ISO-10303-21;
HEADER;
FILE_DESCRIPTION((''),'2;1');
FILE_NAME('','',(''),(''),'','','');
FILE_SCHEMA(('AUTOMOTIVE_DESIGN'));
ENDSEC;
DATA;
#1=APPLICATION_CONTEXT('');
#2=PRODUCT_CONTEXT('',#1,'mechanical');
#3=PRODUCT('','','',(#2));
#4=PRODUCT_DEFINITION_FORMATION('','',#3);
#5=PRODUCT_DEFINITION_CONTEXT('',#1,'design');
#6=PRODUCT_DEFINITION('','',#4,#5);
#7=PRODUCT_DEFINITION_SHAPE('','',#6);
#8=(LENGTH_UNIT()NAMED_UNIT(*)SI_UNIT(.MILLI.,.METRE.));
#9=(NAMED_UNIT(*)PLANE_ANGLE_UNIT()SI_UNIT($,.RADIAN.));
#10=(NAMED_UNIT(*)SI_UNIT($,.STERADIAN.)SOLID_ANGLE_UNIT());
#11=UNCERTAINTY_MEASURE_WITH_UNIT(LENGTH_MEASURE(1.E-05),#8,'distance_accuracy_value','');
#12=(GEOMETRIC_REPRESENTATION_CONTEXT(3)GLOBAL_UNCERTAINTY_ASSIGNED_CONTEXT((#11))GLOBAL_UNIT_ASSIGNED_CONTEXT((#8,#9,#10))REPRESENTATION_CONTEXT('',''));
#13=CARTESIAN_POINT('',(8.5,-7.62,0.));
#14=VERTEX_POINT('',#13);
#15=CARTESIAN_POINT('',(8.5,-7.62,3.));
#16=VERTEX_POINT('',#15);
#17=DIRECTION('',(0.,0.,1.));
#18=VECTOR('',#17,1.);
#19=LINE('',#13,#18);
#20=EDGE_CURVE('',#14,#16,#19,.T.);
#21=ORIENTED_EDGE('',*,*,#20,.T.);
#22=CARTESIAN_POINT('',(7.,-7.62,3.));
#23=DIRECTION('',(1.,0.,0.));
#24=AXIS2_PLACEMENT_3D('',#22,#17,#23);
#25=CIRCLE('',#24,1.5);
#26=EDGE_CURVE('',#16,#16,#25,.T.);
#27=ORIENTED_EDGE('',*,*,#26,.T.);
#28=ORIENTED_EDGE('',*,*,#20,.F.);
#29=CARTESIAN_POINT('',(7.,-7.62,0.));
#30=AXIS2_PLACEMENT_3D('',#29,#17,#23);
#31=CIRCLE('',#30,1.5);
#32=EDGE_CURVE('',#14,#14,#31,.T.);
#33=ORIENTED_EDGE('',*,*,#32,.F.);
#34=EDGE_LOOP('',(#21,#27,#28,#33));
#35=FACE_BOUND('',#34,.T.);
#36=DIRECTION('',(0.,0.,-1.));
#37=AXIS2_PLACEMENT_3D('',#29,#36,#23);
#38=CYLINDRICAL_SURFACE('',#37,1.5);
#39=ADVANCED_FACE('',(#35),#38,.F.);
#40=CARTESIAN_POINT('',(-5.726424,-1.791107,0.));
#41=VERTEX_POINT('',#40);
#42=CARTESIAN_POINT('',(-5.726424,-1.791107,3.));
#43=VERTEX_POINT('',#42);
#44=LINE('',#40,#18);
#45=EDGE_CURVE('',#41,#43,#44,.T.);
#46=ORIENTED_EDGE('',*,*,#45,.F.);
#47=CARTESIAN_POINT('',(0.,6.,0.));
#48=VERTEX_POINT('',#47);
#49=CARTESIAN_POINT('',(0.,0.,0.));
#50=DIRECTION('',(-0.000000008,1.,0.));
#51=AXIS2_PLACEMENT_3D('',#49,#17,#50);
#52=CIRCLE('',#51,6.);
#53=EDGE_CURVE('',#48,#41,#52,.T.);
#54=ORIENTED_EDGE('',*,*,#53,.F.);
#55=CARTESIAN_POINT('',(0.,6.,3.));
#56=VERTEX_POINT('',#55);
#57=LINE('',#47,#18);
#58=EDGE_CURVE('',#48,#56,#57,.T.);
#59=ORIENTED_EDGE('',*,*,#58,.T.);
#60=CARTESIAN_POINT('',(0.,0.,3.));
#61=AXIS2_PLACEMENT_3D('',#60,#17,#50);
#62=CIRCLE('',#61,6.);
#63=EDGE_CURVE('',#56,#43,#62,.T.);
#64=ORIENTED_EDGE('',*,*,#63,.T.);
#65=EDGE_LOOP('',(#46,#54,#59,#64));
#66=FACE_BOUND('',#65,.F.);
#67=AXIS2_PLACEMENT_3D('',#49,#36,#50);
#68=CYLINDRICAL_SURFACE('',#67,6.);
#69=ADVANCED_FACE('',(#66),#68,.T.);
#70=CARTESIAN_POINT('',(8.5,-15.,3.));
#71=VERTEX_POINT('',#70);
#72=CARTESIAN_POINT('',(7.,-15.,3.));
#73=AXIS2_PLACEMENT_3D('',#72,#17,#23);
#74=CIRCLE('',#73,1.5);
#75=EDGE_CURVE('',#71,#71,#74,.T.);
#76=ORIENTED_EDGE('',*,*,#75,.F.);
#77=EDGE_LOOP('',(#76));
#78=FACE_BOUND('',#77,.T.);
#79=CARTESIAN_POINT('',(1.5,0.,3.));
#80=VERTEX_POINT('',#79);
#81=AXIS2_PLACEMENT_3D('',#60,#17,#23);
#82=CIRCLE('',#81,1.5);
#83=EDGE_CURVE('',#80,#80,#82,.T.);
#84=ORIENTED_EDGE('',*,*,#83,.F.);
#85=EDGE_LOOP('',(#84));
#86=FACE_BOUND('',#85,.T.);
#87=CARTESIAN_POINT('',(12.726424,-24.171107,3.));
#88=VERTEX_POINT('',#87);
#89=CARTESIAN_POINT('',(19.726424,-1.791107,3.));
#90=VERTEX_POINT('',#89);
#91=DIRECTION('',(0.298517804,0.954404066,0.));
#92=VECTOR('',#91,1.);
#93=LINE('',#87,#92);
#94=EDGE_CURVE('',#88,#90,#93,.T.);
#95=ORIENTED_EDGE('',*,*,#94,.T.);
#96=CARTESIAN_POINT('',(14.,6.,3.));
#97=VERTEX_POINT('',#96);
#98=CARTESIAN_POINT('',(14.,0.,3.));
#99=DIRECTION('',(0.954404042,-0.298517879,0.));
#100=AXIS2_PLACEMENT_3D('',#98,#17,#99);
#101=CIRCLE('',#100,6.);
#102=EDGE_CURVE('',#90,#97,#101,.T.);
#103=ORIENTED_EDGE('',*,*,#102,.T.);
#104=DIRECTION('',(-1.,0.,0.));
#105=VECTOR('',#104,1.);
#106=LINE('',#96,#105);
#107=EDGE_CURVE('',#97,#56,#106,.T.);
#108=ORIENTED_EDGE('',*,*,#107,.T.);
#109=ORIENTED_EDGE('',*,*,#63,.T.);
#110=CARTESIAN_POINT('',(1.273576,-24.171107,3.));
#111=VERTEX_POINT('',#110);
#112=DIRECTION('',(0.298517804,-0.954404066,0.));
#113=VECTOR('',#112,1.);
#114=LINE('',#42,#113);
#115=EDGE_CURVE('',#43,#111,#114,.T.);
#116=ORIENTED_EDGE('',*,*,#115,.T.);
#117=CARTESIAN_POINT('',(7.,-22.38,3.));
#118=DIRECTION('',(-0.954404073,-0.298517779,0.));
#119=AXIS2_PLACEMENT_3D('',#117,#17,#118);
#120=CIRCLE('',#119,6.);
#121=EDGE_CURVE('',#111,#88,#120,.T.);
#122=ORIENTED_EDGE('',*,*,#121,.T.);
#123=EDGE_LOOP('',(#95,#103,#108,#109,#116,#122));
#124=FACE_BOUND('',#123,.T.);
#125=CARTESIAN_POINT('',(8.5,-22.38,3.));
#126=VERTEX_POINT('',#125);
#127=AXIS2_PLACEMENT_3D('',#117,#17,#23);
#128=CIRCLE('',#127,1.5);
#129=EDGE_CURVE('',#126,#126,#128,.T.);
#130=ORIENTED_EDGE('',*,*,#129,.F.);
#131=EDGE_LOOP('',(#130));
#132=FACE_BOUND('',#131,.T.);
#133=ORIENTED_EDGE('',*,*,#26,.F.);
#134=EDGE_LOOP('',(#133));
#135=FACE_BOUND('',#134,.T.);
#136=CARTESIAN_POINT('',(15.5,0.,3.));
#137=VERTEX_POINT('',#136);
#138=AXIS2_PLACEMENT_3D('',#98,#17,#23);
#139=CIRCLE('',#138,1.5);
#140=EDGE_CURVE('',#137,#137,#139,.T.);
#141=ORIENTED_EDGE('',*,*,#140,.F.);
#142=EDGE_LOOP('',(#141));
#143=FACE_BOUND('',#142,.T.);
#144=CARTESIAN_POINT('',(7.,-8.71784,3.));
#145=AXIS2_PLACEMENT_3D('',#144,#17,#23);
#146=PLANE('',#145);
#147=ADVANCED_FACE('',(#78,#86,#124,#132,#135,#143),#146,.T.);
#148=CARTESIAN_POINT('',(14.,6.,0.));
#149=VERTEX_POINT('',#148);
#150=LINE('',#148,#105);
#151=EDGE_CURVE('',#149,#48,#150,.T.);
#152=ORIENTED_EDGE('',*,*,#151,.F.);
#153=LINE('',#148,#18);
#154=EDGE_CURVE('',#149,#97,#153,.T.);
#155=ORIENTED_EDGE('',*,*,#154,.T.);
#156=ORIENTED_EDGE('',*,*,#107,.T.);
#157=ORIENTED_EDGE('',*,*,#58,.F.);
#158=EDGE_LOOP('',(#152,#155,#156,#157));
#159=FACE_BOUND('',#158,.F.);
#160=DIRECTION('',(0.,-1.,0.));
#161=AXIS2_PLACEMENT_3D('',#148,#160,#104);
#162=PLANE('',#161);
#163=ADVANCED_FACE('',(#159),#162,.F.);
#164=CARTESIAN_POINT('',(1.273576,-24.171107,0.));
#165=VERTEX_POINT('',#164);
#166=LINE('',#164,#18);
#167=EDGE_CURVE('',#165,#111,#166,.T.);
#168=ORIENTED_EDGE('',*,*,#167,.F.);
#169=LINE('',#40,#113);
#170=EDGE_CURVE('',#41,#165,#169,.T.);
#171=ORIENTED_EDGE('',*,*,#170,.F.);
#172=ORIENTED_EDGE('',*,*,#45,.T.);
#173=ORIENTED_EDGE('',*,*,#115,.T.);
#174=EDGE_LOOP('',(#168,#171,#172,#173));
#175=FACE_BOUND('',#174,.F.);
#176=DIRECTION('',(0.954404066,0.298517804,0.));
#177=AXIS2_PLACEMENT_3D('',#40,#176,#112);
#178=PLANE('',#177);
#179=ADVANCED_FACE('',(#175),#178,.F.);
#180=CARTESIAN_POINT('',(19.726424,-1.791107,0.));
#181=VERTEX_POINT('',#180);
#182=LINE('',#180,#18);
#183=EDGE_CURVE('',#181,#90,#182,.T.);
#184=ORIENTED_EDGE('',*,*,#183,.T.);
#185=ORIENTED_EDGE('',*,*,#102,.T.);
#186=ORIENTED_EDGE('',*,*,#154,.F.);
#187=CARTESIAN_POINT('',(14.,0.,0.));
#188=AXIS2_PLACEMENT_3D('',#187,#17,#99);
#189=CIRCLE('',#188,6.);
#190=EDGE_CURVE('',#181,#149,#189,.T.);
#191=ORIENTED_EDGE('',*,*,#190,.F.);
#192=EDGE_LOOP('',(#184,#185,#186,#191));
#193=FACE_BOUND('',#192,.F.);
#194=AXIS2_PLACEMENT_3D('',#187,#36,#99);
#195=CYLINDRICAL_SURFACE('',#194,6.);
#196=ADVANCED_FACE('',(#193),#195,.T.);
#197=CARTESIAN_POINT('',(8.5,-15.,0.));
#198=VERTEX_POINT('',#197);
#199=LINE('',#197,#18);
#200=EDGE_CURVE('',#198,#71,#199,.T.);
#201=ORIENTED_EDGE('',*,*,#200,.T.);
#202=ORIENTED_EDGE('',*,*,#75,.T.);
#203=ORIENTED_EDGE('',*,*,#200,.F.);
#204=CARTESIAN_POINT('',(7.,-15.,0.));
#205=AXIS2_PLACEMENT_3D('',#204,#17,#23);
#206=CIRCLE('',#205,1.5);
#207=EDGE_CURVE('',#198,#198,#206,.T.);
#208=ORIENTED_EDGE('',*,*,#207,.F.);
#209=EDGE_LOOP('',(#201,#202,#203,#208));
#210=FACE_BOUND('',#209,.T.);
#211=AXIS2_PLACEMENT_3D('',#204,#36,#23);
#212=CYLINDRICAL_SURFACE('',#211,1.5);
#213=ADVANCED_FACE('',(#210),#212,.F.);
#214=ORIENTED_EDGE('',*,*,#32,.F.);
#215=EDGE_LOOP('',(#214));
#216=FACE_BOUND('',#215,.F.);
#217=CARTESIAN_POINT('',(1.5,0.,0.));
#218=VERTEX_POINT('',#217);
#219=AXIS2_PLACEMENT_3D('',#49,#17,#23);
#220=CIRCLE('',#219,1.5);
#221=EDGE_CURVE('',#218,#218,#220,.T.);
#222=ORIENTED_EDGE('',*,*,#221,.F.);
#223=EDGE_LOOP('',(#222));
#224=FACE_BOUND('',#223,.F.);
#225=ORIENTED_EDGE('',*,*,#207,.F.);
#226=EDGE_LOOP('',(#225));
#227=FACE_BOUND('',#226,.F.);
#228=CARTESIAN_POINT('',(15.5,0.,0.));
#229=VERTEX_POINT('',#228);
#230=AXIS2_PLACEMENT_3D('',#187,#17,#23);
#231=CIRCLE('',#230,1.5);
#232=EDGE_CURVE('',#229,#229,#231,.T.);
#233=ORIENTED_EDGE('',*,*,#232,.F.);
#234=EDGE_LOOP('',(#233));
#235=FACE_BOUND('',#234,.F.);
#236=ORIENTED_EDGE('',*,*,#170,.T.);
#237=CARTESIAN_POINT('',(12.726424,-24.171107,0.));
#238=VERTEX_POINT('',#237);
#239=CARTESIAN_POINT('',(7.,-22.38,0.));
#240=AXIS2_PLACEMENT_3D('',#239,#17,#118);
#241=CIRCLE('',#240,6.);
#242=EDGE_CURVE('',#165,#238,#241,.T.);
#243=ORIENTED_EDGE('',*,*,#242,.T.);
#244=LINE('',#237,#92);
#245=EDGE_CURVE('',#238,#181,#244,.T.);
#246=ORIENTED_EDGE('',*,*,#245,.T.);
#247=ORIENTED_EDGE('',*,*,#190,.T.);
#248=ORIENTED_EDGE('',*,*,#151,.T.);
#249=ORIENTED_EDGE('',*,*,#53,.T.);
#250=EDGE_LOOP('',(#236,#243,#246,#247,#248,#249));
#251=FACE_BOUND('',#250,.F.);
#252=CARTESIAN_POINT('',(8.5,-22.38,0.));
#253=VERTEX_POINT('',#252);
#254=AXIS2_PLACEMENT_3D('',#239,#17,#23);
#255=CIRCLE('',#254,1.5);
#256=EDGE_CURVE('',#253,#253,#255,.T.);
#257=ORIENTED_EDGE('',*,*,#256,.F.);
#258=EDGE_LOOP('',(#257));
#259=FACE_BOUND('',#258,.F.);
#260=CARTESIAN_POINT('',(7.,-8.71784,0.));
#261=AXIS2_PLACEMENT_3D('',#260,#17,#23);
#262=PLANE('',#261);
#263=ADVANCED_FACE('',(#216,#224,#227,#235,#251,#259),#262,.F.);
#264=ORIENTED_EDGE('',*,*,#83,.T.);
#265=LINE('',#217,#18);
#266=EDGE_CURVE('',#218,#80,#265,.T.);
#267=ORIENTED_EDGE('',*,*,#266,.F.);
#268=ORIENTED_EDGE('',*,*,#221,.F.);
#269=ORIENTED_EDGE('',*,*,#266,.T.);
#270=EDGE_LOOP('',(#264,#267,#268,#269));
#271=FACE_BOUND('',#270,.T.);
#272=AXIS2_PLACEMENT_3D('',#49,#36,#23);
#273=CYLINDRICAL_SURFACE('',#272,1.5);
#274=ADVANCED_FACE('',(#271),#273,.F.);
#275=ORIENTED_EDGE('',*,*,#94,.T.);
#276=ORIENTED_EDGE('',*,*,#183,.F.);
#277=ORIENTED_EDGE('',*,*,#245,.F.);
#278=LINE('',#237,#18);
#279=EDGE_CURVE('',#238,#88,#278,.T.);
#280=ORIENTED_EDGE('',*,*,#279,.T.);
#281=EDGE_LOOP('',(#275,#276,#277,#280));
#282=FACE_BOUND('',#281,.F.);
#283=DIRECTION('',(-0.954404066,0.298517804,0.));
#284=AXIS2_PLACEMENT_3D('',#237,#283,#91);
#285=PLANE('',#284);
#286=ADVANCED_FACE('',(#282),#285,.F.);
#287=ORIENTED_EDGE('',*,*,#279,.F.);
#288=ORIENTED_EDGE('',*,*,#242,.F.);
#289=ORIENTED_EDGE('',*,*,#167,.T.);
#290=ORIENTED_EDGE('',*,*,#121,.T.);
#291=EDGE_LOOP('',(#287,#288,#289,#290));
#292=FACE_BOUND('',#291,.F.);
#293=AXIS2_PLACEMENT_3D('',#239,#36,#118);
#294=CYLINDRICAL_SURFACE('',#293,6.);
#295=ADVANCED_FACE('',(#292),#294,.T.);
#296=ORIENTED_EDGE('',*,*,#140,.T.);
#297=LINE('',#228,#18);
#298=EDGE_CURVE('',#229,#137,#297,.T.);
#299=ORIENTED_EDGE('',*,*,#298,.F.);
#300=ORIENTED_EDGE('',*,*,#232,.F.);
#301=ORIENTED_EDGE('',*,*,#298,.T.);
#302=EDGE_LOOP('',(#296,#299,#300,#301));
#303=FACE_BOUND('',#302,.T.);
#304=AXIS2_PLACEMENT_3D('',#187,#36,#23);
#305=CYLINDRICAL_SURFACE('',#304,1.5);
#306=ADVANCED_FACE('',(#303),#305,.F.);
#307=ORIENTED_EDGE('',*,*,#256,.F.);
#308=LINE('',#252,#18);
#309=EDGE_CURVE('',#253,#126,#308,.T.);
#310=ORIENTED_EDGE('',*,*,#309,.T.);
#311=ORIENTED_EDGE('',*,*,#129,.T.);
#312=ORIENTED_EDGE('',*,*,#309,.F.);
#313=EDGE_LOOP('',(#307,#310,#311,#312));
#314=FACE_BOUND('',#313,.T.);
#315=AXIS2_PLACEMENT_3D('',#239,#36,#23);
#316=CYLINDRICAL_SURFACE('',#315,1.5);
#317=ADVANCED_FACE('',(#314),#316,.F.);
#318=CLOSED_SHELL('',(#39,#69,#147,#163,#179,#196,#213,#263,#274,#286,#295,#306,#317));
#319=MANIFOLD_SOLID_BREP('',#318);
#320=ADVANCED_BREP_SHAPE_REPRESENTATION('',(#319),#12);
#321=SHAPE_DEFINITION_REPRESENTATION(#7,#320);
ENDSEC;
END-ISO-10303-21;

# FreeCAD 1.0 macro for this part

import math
import FreeCAD as App
import Part
import Sketcher

doc = App.newDocument("Part")
body = doc.addObject("PartDesign::Body", "Body")

sketch1 = body.newObject("Sketcher::SketchObject", "Sketch")
sketch1.AttachmentSupport = (doc.getObject("XY_Plane"), [""])
sketch1.MapMode = "FlatFace"
sketch1.addGeometry([
    Part.LineSegment(App.Vector(14, 6, 0), App.Vector(0, 6, 0)),
    Part.ArcOfCircle(Part.Circle(App.Vector(0, 0, 0), App.Vector(0, 0, 1), 6), math.radians(90), math.radians(197)),
    Part.LineSegment(App.Vector(-5.7, -1.8, 0), App.Vector(1.3, -24.2, 0)),
    Part.ArcOfCircle(Part.Circle(App.Vector(7, -22.4, 0), App.Vector(0, 0, 1), 6), math.radians(-163), math.radians(-17)),
    Part.LineSegment(App.Vector(12.7, -24.2, 0), App.Vector(19.7, -1.8, 0)),
    Part.ArcOfCircle(Part.Circle(App.Vector(14, 0, 0), App.Vector(0, 0, 1), 6), math.radians(-17), math.radians(90)),
    Part.Circle(App.Vector(7, -22.4, 0), App.Vector(0, 0, 1), 1.5),
    Part.Circle(App.Vector(7, -15, 0), App.Vector(0, 0, 1), 1.5),
    Part.Circle(App.Vector(0, 0, 0), App.Vector(0, 0, 1), 1.5),
    Part.Circle(App.Vector(7, -7.6, 0), App.Vector(0, 0, 1), 1.5),
    Part.Circle(App.Vector(14, 0, 0), App.Vector(0, 0, 1), 1.5),
], False)
sketch1.addConstraint([
    Sketcher.Constraint("Tangent", 0, 2, 1, 1),
    Sketcher.Constraint("Tangent", 1, 2, 2, 1),
    Sketcher.Constraint("Tangent", 2, 2, 3, 1),
    Sketcher.Constraint("Tangent", 3, 2, 4, 1),
    Sketcher.Constraint("Tangent", 4, 2, 5, 1),
    Sketcher.Constraint("Tangent", 5, 2, 0, 1),
    Sketcher.Constraint("Horizontal", 0),
    Sketcher.Constraint("Coincident", 1, 3, -1, 1),
    Sketcher.Constraint("Coincident", 8, 3, -1, 1),
    Sketcher.Constraint("Coincident", 6, 3, 3, 3),
    Sketcher.Constraint("Coincident", 10, 3, 5, 3),
    Sketcher.Constraint("Equal", 1, 3),
    Sketcher.Constraint("Equal", 3, 5),
    Sketcher.Constraint("Equal", 6, 7),
    Sketcher.Constraint("Equal", 7, 8),
    Sketcher.Constraint("Equal", 8, 9),
    Sketcher.Constraint("Equal", 9, 10),
    Sketcher.Constraint("Horizontal", 2, 2, 3, 2),
    Sketcher.Constraint("Vertical", 6, 3, 7, 3),
    Sketcher.Constraint("Vertical", 7, 3, 9, 3),
    Sketcher.Constraint("Diameter", 6, 3.0),
    Sketcher.Constraint("Radius", 1, 6.0),
    Sketcher.Constraint("DistanceX", 0, 2, 0, 1, 14.0),
    Sketcher.Constraint("DistanceY", 7, 3, -1, 1, 15.0),
    Sketcher.Constraint("DistanceY", 3, 3, -1, 1, 22.38),
    Sketcher.Constraint("DistanceY", 9, 3, -1, 1, 7.62),
])
pad1 = body.newObject("PartDesign::Pad", "Pad")
pad1.Profile = sketch1
pad1.Length = 3

doc.recompute()
